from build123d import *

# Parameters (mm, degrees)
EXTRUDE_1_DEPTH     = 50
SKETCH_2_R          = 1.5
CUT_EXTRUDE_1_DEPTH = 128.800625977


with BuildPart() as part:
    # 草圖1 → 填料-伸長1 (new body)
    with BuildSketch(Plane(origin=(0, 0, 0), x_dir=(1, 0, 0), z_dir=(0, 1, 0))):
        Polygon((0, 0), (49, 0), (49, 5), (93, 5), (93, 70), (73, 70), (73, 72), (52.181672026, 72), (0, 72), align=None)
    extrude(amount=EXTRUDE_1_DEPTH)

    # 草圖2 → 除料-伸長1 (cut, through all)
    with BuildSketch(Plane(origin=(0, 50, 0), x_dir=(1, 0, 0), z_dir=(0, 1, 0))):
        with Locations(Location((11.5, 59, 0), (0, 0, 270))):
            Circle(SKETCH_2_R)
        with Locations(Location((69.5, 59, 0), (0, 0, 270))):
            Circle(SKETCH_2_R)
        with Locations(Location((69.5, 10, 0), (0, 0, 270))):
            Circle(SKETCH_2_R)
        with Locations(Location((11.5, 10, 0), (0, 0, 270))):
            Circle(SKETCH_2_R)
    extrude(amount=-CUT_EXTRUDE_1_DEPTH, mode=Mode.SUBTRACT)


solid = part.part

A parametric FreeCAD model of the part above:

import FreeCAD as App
import Part
import Sketcher
Q = App.Units.Quantity

doc = App.newDocument("Part")
body = doc.addObject("PartDesign::Body", "Body")

# Sketch on XZ plane
sketch1 = body.newObject("Sketcher::SketchObject", "Sketch")
sketch1.AttachmentSupport = (doc.getObject("XZ_Plane"), [""])
sketch1.MapMode = "FlatFace"
sketch1.addGeometry([
    Part.LineSegment(App.Vector(0, 0, 0), App.Vector(49, 0, 0)),  # 0
    Part.LineSegment(App.Vector(49, 0, 0), App.Vector(49, -5, 0)),  # 1
    Part.LineSegment(App.Vector(49, -5, 0), App.Vector(93, -5, 0)),  # 2
    Part.LineSegment(App.Vector(93, -5, 0), App.Vector(93, -70, 0)),  # 3
    Part.LineSegment(App.Vector(93, -70, 0), App.Vector(73, -70, 0)),  # 4
    Part.LineSegment(App.Vector(73, -70, 0), App.Vector(73, -72, 0)),  # 5
    Part.LineSegment(App.Vector(73, -72, 0), App.Vector(0, -72, 0)),  # 6
    Part.LineSegment(App.Vector(0, -72, 0), App.Vector(0, 0, 0)),  # 7
], False)
sketch1.addConstraint([
    Sketcher.Constraint("Coincident", 0, 2, 1, 1),
    Sketcher.Constraint("Coincident", 1, 2, 2, 1),
    Sketcher.Constraint("Coincident", 2, 2, 3, 1),
    Sketcher.Constraint("Coincident", 3, 2, 4, 1),
    Sketcher.Constraint("Coincident", 4, 2, 5, 1),
    Sketcher.Constraint("Coincident", 5, 2, 6, 1),
    Sketcher.Constraint("Coincident", 6, 2, 7, 1),
    Sketcher.Constraint("Coincident", 7, 2, 0, 1),
    Sketcher.Constraint("Horizontal", 0),
    Sketcher.Constraint("Vertical", 1),
    Sketcher.Constraint("Horizontal", 2),
    Sketcher.Constraint("Vertical", 3),
    Sketcher.Constraint("Horizontal", 4),
    Sketcher.Constraint("Vertical", 5),
    Sketcher.Constraint("Horizontal", 6),
    Sketcher.Constraint("Vertical", 7),
    Sketcher.Constraint("Coincident", 7, 2, -1, 1),
    Sketcher.Constraint("DistanceX", 0, 1, 0, 2, Q("49 mm")),
    Sketcher.Constraint("DistanceX", 2, 1, 2, 2, Q("44 mm")),
    Sketcher.Constraint("DistanceX", 4, 2, 4, 1, Q("20 mm")),
    Sketcher.Constraint("DistanceY", 1, 2, 1, 1, Q("5 mm")),
    Sketcher.Constraint("DistanceY", 3, 2, 3, 1, Q("65 mm")),
    Sketcher.Constraint("DistanceY", 5, 2, 5, 1, Q("2 mm")),
])
pad1 = body.newObject("PartDesign::Pad", "Pad")
pad1.Profile = sketch1
pad1.Length = 50
pad1.Reversed = True

# Sketch on XZ plane
sketch2 = body.newObject("Sketcher::SketchObject", "Sketch001")
sketch2.AttachmentSupport = (doc.getObject("XZ_Plane"), [""])
sketch2.MapMode = "FlatFace"
sketch2.AttachmentOffset = App.Placement(App.Vector(0, 0, -50), App.Rotation())
sketch2.addGeometry([
    Part.Circle(App.Vector(11.5, -59, 0), App.Vector(0, 0, 1), 1.5),
    Part.Circle(App.Vector(69.5, -59, 0), App.Vector(0, 0, 1), 1.5),
    Part.Circle(App.Vector(69.5, -10, 0), App.Vector(0, 0, 1), 1.5),
    Part.Circle(App.Vector(11.5, -10, 0), App.Vector(0, 0, 1), 1.5),
], False)
sketch2.addConstraint([
    Sketcher.Constraint("Equal", 0, 1),
    Sketcher.Constraint("Equal", 1, 2),
    Sketcher.Constraint("Equal", 2, 3),
    Sketcher.Constraint("Horizontal", 0, 3, 1, 3),
    Sketcher.Constraint("Horizontal", 2, 3, 3, 3),
    Sketcher.Constraint("Vertical", 1, 3, 2, 3),
    Sketcher.Constraint("Vertical", 0, 3, 3, 3),
    Sketcher.Constraint("Diameter", 0, Q("3 mm")),
    Sketcher.Constraint("DistanceY", 0, 3, -1, 1, Q("59 mm")),
    Sketcher.Constraint("DistanceY", 2, 3, -1, 1, Q("10 mm")),
    Sketcher.Constraint("DistanceX", 0, 3, 1, 3, Q("58 mm")),
    Sketcher.Constraint("DistanceX", -1, 1, 0, 3, Q("11.5 mm")),
])
pocket1 = body.newObject("PartDesign::Pocket", "Pocket")
pocket1.Profile = sketch2
pocket1.Type = "ThroughAll"
pocket1.Reversed = True

doc.recompute()
